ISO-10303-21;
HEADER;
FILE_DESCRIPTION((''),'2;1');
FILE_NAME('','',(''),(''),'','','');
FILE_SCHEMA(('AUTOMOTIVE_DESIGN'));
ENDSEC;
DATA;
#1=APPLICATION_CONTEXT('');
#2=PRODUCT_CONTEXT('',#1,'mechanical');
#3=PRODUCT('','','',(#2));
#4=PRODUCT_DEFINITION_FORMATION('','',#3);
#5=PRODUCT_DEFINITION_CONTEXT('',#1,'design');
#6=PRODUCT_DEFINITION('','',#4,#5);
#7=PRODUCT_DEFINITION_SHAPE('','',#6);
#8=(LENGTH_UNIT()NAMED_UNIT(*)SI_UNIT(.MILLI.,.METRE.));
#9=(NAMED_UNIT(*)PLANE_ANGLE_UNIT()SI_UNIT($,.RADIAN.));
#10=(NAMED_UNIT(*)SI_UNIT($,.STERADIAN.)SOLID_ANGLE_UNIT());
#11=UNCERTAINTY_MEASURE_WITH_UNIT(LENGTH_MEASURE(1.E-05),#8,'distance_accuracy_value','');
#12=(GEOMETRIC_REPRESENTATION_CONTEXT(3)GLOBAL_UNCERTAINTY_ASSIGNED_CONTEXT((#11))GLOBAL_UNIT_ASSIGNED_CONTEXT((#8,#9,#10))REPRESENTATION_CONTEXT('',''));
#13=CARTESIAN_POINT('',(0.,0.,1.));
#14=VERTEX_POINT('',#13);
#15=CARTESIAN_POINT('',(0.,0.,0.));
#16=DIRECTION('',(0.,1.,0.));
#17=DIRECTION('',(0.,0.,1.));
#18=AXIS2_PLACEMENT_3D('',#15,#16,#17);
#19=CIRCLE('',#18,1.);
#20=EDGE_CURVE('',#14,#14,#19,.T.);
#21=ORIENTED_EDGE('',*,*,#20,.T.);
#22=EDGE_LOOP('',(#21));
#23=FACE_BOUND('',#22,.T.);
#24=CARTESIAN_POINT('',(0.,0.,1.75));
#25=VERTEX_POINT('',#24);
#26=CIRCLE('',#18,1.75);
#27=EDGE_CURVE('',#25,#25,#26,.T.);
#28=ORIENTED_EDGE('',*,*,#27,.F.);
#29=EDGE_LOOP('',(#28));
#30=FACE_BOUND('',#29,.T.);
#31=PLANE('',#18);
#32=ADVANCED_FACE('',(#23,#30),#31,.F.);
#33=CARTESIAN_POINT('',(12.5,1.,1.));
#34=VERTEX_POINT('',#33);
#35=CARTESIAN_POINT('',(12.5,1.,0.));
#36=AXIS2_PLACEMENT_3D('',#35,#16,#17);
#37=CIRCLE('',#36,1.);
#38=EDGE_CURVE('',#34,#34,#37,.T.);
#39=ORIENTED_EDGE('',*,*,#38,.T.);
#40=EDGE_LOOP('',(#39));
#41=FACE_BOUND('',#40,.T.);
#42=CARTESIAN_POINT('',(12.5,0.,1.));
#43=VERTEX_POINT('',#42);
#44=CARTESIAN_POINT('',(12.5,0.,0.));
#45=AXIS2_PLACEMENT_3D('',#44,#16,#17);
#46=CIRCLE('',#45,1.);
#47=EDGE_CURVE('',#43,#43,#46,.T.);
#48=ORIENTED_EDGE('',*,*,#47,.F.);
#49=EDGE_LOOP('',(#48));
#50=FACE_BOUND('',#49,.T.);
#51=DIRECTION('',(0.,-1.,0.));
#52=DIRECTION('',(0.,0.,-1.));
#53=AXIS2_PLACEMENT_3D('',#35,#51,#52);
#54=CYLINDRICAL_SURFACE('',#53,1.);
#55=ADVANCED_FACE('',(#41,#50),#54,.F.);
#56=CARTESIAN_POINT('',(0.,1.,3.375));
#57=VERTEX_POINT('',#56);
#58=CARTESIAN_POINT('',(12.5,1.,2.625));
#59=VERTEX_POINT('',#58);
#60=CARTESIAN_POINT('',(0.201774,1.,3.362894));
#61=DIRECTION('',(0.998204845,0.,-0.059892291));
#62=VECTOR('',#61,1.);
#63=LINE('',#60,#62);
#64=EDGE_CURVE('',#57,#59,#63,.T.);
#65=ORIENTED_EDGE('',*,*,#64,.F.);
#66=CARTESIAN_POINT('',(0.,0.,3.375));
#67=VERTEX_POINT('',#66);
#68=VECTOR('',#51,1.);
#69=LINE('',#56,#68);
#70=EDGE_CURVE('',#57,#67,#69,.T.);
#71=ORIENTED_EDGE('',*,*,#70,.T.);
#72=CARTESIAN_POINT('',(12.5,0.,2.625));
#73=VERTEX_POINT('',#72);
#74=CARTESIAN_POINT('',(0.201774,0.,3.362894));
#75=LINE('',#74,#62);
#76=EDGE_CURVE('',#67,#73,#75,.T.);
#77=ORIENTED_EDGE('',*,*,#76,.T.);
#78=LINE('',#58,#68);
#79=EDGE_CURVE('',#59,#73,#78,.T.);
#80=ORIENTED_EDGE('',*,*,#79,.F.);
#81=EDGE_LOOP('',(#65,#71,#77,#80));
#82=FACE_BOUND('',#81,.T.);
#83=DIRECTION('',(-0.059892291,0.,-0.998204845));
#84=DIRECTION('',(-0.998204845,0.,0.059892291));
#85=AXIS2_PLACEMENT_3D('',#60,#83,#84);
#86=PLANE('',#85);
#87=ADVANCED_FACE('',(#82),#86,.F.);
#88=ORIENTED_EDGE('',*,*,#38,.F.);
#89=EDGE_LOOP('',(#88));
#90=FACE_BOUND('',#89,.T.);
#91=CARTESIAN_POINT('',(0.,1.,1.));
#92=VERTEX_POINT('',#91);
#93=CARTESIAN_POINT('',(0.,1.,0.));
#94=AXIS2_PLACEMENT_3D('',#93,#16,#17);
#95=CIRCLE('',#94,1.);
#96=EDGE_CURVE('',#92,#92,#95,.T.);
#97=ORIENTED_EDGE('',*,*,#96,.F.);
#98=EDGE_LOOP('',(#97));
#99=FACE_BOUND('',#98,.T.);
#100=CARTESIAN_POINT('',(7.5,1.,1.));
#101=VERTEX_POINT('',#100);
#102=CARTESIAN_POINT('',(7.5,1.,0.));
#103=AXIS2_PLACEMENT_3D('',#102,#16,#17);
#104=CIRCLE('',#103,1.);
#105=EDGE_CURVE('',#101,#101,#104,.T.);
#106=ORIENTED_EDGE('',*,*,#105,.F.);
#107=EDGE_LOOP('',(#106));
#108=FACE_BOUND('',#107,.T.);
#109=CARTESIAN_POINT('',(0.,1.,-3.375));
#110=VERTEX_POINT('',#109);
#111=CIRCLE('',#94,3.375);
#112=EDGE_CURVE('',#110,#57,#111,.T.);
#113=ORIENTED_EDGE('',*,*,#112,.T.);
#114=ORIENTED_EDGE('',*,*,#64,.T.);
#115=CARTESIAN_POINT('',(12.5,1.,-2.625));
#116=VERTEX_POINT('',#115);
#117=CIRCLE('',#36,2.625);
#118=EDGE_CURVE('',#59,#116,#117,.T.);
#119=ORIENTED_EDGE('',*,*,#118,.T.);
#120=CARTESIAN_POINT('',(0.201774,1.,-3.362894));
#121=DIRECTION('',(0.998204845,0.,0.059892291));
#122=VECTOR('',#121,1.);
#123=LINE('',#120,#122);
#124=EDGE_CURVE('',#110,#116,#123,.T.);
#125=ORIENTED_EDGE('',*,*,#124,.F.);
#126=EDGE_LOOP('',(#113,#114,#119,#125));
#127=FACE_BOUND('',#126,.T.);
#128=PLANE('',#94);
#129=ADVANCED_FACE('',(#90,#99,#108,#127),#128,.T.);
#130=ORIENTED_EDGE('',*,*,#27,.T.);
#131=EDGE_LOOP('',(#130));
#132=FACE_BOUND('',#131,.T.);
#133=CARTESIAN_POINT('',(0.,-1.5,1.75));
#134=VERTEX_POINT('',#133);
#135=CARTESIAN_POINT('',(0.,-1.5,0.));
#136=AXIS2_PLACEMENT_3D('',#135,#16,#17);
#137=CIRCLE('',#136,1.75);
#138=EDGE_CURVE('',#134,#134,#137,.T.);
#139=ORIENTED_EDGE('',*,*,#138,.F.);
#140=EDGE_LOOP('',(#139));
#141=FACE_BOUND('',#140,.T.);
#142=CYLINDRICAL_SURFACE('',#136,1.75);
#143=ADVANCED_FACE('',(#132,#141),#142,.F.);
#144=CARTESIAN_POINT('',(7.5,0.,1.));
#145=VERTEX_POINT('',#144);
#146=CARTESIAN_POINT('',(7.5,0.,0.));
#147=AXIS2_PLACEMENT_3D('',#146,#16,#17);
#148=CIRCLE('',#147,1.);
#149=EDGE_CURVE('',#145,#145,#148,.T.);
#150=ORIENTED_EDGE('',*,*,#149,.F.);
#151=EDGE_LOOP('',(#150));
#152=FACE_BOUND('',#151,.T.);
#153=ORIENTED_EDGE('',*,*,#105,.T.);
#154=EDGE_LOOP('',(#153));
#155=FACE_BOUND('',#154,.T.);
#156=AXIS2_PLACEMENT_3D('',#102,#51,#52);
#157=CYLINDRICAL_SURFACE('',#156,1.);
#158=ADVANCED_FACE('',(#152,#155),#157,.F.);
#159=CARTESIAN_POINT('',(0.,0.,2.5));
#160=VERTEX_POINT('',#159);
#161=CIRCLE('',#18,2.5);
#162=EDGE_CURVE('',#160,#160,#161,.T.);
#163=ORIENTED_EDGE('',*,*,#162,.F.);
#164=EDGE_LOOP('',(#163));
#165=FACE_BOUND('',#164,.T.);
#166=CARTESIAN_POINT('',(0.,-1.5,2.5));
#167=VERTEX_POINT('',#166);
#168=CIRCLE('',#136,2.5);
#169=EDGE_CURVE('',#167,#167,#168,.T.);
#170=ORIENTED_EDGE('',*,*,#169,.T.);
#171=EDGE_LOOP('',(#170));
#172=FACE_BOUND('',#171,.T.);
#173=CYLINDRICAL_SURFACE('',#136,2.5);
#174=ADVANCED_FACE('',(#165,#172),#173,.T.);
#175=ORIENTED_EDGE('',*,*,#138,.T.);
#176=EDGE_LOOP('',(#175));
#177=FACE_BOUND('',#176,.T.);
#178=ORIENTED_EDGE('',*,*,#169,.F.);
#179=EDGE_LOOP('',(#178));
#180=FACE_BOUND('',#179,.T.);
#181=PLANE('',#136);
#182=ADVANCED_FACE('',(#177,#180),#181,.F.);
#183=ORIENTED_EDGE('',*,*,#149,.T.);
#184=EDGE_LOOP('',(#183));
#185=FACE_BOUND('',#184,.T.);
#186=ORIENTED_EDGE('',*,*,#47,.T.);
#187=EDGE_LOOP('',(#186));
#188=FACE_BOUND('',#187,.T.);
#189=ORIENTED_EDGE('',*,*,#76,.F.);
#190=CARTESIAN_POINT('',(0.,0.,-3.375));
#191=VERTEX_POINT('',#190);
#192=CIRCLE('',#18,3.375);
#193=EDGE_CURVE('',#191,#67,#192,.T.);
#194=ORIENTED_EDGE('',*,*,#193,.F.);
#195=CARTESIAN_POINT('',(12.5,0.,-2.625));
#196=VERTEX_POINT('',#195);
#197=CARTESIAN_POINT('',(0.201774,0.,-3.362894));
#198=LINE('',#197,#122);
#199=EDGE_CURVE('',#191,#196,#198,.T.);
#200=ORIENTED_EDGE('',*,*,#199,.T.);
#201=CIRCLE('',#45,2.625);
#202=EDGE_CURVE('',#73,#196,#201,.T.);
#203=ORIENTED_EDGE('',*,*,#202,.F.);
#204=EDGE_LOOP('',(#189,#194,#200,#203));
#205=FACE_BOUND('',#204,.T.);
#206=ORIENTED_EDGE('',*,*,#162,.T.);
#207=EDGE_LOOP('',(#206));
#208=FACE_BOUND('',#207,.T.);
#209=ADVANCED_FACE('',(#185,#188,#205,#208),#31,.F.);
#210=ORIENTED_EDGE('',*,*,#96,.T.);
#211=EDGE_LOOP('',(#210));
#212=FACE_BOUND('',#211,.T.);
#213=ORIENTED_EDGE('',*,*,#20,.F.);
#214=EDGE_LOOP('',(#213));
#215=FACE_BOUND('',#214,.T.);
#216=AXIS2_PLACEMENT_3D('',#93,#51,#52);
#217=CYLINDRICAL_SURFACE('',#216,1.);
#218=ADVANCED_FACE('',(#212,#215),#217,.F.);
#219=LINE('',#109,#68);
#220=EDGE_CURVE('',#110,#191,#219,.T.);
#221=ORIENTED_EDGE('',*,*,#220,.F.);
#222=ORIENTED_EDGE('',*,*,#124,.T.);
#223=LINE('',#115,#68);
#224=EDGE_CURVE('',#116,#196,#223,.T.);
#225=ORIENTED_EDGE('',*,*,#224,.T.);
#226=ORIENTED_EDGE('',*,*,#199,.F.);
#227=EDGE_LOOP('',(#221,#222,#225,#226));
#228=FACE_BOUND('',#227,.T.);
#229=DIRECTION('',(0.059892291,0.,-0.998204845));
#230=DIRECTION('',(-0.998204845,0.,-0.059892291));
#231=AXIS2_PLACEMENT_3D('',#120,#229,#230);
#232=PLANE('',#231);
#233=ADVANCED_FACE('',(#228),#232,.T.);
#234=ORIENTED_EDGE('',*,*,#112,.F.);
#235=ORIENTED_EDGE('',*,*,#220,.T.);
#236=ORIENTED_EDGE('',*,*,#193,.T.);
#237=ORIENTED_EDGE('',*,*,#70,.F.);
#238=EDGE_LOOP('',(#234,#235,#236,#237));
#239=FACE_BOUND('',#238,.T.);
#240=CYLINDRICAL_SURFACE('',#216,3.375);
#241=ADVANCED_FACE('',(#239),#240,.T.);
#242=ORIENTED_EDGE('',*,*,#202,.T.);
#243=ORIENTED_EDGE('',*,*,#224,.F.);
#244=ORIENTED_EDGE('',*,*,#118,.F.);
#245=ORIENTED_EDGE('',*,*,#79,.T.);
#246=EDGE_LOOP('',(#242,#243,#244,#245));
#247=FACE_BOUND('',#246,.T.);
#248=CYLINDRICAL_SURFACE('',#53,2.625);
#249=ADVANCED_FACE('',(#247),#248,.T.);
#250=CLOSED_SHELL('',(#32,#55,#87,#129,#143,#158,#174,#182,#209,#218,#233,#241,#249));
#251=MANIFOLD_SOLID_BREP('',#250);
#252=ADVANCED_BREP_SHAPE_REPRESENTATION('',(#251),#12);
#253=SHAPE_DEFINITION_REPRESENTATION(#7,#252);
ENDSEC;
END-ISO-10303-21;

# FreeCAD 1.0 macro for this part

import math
import FreeCAD as App
import Part
import Sketcher
from FreeCAD import Vector

doc = App.newDocument("Part")
body = doc.addObject("PartDesign::Body", "Body")

sketch1 = body.newObject("Sketcher::SketchObject", "Sketch")
sketch1.AttachmentSupport = (doc.getObject("XZ_Plane"), [""])
sketch1.MapMode = "FlatFace"
sketch1.addGeometry(Part.LineSegment(Vector(0.4, -3.35, 0), Vector(0, -3.38, 0)), False)
sketch1.addGeometry(Part.ArcOfCircle(Part.Circle(Vector(0, 0, 0), Vector(0, 0, 1), 3.38), math.radians(90), math.radians(270)), False)
sketch1.addGeometry(Part.LineSegment(Vector(0, 3.38, 0), Vector(0.4, 3.35, 0)), False)
sketch1.addGeometry(Part.LineSegment(Vector(0.4, 3.35, 0), Vector(12.5, 2.62, 0)), False)
sketch1.addGeometry(Part.ArcOfCircle(Part.Circle(Vector(12.5, 0, 0), Vector(0, 0, 1), 2.62), math.radians(-90), math.radians(90)), False)
sketch1.addGeometry(Part.LineSegment(Vector(12.5, -2.62, 0), Vector(0.4, -3.35, 0)), False)
sketch1.addGeometry(Part.Circle(Vector(0, 0, 0), Vector(0, 0, 1), 1), False)
sketch1.addGeometry(Part.Circle(Vector(7.5, 0, 0), Vector(0, 0, 1), 1), False)
sketch1.addGeometry(Part.Circle(Vector(12.5, 0, 0), Vector(0, 0, 1), 1), False)
sketch1.addConstraint(Sketcher.Constraint("Coincident", 0, 2, 1, 2))
sketch1.addConstraint(Sketcher.Constraint("Coincident", 1, 1, 2, 1))
sketch1.addConstraint(Sketcher.Constraint("Coincident", 2, 2, 3, 1))
sketch1.addConstraint(Sketcher.Constraint("Coincident", 3, 2, 4, 2))
sketch1.addConstraint(Sketcher.Constraint("Coincident", 4, 1, 5, 1))
sketch1.addConstraint(Sketcher.Constraint("Coincident", 5, 2, 0, 1))
sketch1.addConstraint(Sketcher.Constraint("Coincident", 1, 3, -1, 1))
sketch1.addConstraint(Sketcher.Constraint("Coincident", 6, 3, -1, 1))
sketch1.addConstraint(Sketcher.Constraint("Coincident", 8, 3, 4, 3))
sketch1.addConstraint(Sketcher.Constraint("Equal", 6, 7))
sketch1.addConstraint(Sketcher.Constraint("Equal", 7, 8))
sketch1.addConstraint(Sketcher.Constraint("Symmetric", 3, 2, 4, 1, -1))
sketch1.addConstraint(Sketcher.Constraint("Symmetric", 2, 2, 5, 2, -1))
sketch1.addConstraint(Sketcher.Constraint("PointOnObject", 7, 3, -1))
sketch1.addConstraint(Sketcher.Constraint("PointOnObject", 0, 2, -2))
sketch1.addConstraint(Sketcher.Constraint("PointOnObject", 1, 1, -2))
sketch1.addConstraint(Sketcher.Constraint("Parallel", 2, 3))
sketch1.addConstraint(Sketcher.Constraint("Vertical", 8, 3, 3, 2))
sketch1.addConstraint(Sketcher.Constraint("Diameter", 6, 2.0))
sketch1.addConstraint(Sketcher.Constraint("Radius", 1, 3.375))
sketch1.addConstraint(Sketcher.Constraint("Radius", 4, 2.625))
sketch1.addConstraint(Sketcher.Constraint("DistanceX", 7, 3, 4, 3, 5.0))
sketch1.addConstraint(Sketcher.Constraint("DistanceX", -1, 1, 4, 3, 12.5))
sketch1.addConstraint(Sketcher.Constraint("Distance", 0, 0.404273))
pad1 = body.newObject("PartDesign::Pad", "Pad")
pad1.Profile = sketch1
pad1.Length = 1
pad1.Reversed = True

sketch2 = body.newObject("Sketcher::SketchObject", "Sketch001")
sketch2.AttachmentSupport = (doc.getObject("XZ_Plane"), [""])
sketch2.MapMode = "FlatFace"
sketch2.addGeometry(Part.Circle(Vector(0, 0, 0), Vector(0, 0, 1), 2.5), False)
sketch2.addGeometry(Part.Circle(Vector(0, 0, 0), Vector(0, 0, 1), 1.8), False)
sketch2.addConstraint(Sketcher.Constraint("Coincident", 0, 3, -1, 1))
sketch2.addConstraint(Sketcher.Constraint("Coincident", 1, 3, -1, 1))
sketch2.addConstraint(Sketcher.Constraint("Diameter", 0, 5.0))
sketch2.addConstraint(Sketcher.Constraint("Diameter", 1, 3.5))
pad2 = body.newObject("PartDesign::Pad", "Pad001")
pad2.Profile = sketch2
pad2.Length = 1.5

doc.recompute()
